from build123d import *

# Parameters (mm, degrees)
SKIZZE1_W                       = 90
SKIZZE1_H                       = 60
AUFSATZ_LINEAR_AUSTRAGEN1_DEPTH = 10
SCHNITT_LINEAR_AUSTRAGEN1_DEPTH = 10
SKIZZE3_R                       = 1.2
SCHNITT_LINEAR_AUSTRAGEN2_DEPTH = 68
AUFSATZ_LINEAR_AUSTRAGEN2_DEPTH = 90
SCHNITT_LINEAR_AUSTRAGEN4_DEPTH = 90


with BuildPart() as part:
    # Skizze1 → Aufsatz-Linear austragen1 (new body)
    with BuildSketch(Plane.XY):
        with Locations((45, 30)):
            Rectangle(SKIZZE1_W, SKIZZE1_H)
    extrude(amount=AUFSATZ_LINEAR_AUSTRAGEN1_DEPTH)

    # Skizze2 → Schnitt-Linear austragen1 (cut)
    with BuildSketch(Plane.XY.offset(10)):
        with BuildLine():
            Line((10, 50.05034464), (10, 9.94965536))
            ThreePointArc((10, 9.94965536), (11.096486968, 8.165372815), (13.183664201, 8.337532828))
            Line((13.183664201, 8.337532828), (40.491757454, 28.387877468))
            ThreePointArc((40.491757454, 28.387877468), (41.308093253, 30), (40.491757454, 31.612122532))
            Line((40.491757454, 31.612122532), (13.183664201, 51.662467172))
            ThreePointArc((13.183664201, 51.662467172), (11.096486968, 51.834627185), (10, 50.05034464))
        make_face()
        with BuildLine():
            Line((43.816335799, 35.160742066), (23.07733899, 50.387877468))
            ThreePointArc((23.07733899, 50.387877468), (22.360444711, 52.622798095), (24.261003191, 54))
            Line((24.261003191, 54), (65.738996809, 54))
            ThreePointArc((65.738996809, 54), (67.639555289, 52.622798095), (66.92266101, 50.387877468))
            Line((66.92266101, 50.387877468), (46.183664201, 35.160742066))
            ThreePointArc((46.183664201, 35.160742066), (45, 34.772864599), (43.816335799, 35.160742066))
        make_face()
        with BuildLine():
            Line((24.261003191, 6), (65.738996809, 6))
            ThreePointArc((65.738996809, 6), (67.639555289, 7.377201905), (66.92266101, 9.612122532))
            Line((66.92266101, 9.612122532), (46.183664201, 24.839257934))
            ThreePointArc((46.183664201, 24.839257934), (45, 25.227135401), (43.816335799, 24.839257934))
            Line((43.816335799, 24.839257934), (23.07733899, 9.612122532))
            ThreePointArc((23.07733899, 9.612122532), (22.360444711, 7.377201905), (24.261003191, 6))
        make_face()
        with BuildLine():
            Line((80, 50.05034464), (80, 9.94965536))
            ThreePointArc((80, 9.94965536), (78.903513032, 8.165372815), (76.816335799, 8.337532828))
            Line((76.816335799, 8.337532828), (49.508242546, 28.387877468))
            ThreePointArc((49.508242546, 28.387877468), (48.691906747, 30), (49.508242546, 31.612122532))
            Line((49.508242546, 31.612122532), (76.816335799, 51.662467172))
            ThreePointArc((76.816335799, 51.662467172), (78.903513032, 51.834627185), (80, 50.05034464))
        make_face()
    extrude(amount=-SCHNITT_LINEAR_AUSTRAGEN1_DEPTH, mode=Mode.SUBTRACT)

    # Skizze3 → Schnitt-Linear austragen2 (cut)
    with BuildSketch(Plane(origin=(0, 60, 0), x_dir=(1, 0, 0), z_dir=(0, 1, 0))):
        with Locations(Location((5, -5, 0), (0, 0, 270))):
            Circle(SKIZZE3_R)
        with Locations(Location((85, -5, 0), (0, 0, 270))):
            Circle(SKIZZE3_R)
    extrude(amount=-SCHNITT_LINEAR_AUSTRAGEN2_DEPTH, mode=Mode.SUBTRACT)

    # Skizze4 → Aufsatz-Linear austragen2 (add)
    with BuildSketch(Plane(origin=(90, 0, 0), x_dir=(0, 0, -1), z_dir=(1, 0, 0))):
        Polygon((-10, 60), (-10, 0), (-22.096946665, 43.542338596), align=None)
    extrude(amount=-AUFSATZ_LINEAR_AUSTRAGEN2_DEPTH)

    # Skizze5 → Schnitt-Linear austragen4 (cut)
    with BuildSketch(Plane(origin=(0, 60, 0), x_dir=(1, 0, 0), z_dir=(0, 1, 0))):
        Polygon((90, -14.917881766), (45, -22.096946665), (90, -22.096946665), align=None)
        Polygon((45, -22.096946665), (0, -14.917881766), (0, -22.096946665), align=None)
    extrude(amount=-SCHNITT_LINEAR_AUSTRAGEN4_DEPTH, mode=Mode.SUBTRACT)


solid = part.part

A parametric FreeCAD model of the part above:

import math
import FreeCAD as App
import Part
import Sketcher

V = App.Vector
Q = App.Units.Quantity

doc = App.newDocument("Part")
params = doc.addObject("Spreadsheet::Sheet", "Params")
for row, (alias, value) in enumerate([
    ("sketch1_width", "90 mm"),
    ("sketch1_height", "60 mm"),
    ("pad1_length", "10 mm"),
    ("sketch2_radius", "2 mm"),
    ("pocket1_length", "10 mm"),
    ("sketch3_diameter", "2.4 mm"),
    ("pocket2_length", "68 mm"),
    ("sketch4_width", "60 mm"),
    ("pad2_length", "90 mm"),
    ("sketch5_width", "45 mm"),
    ("pocket3_length", "90 mm"),
], start=1):
    params.set(f"A{row}", alias)
    params.set(f"B{row}", "=" + value)
    params.setAlias(f"B{row}", alias)

body = doc.addObject("PartDesign::Body", "Body")

# Sketch on XY plane
sketch1 = body.newObject("Sketcher::SketchObject", "Sketch")
sketch1.AttachmentSupport = (doc.getObject("XY_Plane"), [""])
sketch1.MapMode = "FlatFace"
sketch1.addGeometry([
    Part.LineSegment(V(0, 60, 0), V(0, 0, 0)),
    Part.LineSegment(V(0, 0, 0), V(90, 0, 0)),
    Part.LineSegment(V(90, 0, 0), V(90, 60, 0)),
    Part.LineSegment(V(90, 60, 0), V(0, 60, 0)),
], False)
sketch1.addConstraint([
    Sketcher.Constraint("Coincident", 0, 2, 1, 1),
    Sketcher.Constraint("Coincident", 1, 2, 2, 1),
    Sketcher.Constraint("Coincident", 2, 2, 3, 1),
    Sketcher.Constraint("Coincident", 3, 2, 0, 1),
    Sketcher.Constraint("Vertical", 0),
    Sketcher.Constraint("Horizontal", 1),
    Sketcher.Constraint("Vertical", 2),
    Sketcher.Constraint("Horizontal", 3),
    Sketcher.Constraint("Coincident", 0, 2, -1, 1),
    Sketcher.Constraint("DistanceX", 1, 1, 1, 2, Q("90 mm")),
    Sketcher.Constraint("DistanceY", 0, 2, 0, 1, Q("60 mm")),
])
sketch1.setExpression("Constraints[9]", "Params.sketch1_width")
sketch1.setExpression("Constraints[10]", "Params.sketch1_height")
pad1 = body.newObject("PartDesign::Pad", "Pad")
pad1.Profile = sketch1
pad1.setExpression("Length", "Params.pad1_length")

# Sketch on XY plane
sketch2 = body.newObject("Sketcher::SketchObject", "Sketch001")
sketch2.AttachmentSupport = (doc.getObject("XY_Plane"), [""])
sketch2.MapMode = "FlatFace"
sketch2.AttachmentOffset = App.Placement(V(0, 0, 10), App.Rotation())
sketch2.addGeometry([
    Part.LineSegment(V(10, 50.1, 0), V(10, 9.9, 0)),  # 0
    Part.ArcOfCircle(Part.Circle(V(12, 9.9, 0), V(0, 0, 1), 2), math.radians(180), math.radians(306)),  # 1
    Part.LineSegment(V(13.2, 8.3, 0), V(40.5, 28.4, 0)),  # 2
    Part.ArcOfCircle(Part.Circle(V(39.3, 30, 0), V(0, 0, 1), 2), math.radians(-54), math.radians(54)),  # 3
    Part.LineSegment(V(40.5, 31.6, 0), V(13.2, 51.7, 0)),  # 4
    Part.ArcOfCircle(Part.Circle(V(12, 50.1, 0), V(0, 0, 1), 2), math.radians(54), math.radians(180)),  # 5
    Part.LineSegment(V(23.1, 50.4, 0), V(43.8, 35.2, 0)),  # 6
    Part.ArcOfCircle(Part.Circle(V(45, 36.8, 0), V(0, 0, 1), 2), math.radians(-126), math.radians(-54)),  # 7
    Part.LineSegment(V(46.2, 35.2, 0), V(66.9, 50.4, 0)),  # 8
    Part.ArcOfCircle(Part.Circle(V(65.7, 52, 0), V(0, 0, 1), 2), math.radians(-54), math.radians(90)),  # 9
    Part.LineSegment(V(65.7, 54, 0), V(24.3, 54, 0)),  # 10
    Part.ArcOfCircle(Part.Circle(V(24.3, 52, 0), V(0, 0, 1), 2), math.radians(90), math.radians(234)),  # 11
    Part.LineSegment(V(24.3, 6, 0), V(65.7, 6, 0)),  # 12
    Part.ArcOfCircle(Part.Circle(V(65.7, 8, 0), V(0, 0, 1), 2), math.radians(-90), math.radians(54)),  # 13
    Part.LineSegment(V(66.9, 9.6, 0), V(46.2, 24.8, 0)),  # 14
    Part.ArcOfCircle(Part.Circle(V(45, 23.2, 0), V(0, 0, 1), 2), math.radians(54), math.radians(126)),  # 15
    Part.LineSegment(V(43.8, 24.8, 0), V(23.1, 9.6, 0)),  # 16
    Part.ArcOfCircle(Part.Circle(V(24.3, 8, 0), V(0, 0, 1), 2), math.radians(126), math.radians(270)),  # 17
    Part.LineSegment(V(80, 9.9, 0), V(80, 50.1, 0)),  # 18
    Part.ArcOfCircle(Part.Circle(V(78, 50.1, 0), V(0, 0, 1), 2), math.radians(0), math.radians(126)),  # 19
    Part.LineSegment(V(76.8, 51.7, 0), V(49.5, 31.6, 0)),  # 20
    Part.ArcOfCircle(Part.Circle(V(50.7, 30, 0), V(0, 0, 1), 2), math.radians(126), math.radians(234)),  # 21
    Part.LineSegment(V(49.5, 28.4, 0), V(76.8, 8.3, 0)),  # 22
    Part.ArcOfCircle(Part.Circle(V(78, 9.9, 0), V(0, 0, 1), 2), math.radians(-126), math.radians(0)),  # 23
], False)
sketch2.addConstraint([
    Sketcher.Constraint("Tangent", 0, 2, 1, 1),
    Sketcher.Constraint("Tangent", 1, 2, 2, 1),
    Sketcher.Constraint("Tangent", 2, 2, 3, 1),
    Sketcher.Constraint("Tangent", 3, 2, 4, 1),
    Sketcher.Constraint("Tangent", 4, 2, 5, 1),
    Sketcher.Constraint("Tangent", 5, 2, 0, 1),
    Sketcher.Constraint("Tangent", 6, 2, 7, 1),
    Sketcher.Constraint("Tangent", 7, 2, 8, 1),
    Sketcher.Constraint("Tangent", 8, 2, 9, 1),
    Sketcher.Constraint("Tangent", 9, 2, 10, 1),
    Sketcher.Constraint("Tangent", 10, 2, 11, 1),
    Sketcher.Constraint("Tangent", 11, 2, 6, 1),
    Sketcher.Constraint("Tangent", 12, 2, 13, 1),
    Sketcher.Constraint("Tangent", 13, 2, 14, 1),
    Sketcher.Constraint("Tangent", 14, 2, 15, 1),
    Sketcher.Constraint("Tangent", 15, 2, 16, 1),
    Sketcher.Constraint("Tangent", 16, 2, 17, 1),
    Sketcher.Constraint("Tangent", 17, 2, 12, 1),
    Sketcher.Constraint("Tangent", 18, 2, 19, 1),
    Sketcher.Constraint("Tangent", 19, 2, 20, 1),
    Sketcher.Constraint("Tangent", 20, 2, 21, 1),
    Sketcher.Constraint("Tangent", 21, 2, 22, 1),
    Sketcher.Constraint("Tangent", 22, 2, 23, 1),
    Sketcher.Constraint("Tangent", 23, 2, 18, 1),
    Sketcher.Constraint("Vertical", 0),
    Sketcher.Constraint("Horizontal", 10),
    Sketcher.Constraint("Horizontal", 12),
    Sketcher.Constraint("Vertical", 18),
    Sketcher.Constraint("Equal", 1, 3),
    Sketcher.Constraint("Equal", 3, 5),
    Sketcher.Constraint("Equal", 5, 7),
    Sketcher.Constraint("Equal", 7, 9),
    Sketcher.Constraint("Equal", 9, 11),
    Sketcher.Constraint("Equal", 11, 13),
    Sketcher.Constraint("Equal", 13, 15),
    Sketcher.Constraint("Equal", 15, 17),
    Sketcher.Constraint("Equal", 17, 19),
    Sketcher.Constraint("Equal", 19, 21),
    Sketcher.Constraint("Equal", 21, 23),
    Sketcher.Constraint("Parallel", 4, 6),
    Sketcher.Constraint("Parallel", 2, 8),
    Sketcher.Constraint("Parallel", 6, 14),
    Sketcher.Constraint("Parallel", 8, 16),
    Sketcher.Constraint("Parallel", 16, 20),
    Sketcher.Constraint("Parallel", 14, 22),
    Sketcher.Constraint("Horizontal", 5, 3, 19, 3),
    Sketcher.Constraint("Horizontal", 3, 3, 21, 3),
    Sketcher.Constraint("Horizontal", 1, 3, 23, 3),
    Sketcher.Constraint("Vertical", 9, 3, 13, 3),
    Sketcher.Constraint("Vertical", 7, 3, 15, 3),
    Sketcher.Constraint("Radius", 1, Q("2 mm")),
    Sketcher.Constraint("DistanceX", -1, 1, 1, 3, Q("12 mm")),
    Sketcher.Constraint("DistanceY", -1, 1, 3, 3, Q("30 mm")),
    Sketcher.Constraint("DistanceX", -1, 1, 7, 3, Q("45 mm")),
    Sketcher.Constraint("DistanceY", -1, 1, 9, 3, Q("52 mm")),
    Sketcher.Constraint("DistanceY", -1, 1, 13, 3, Q("8 mm")),
    Sketcher.Constraint("DistanceX", -1, 1, 19, 3, Q("78 mm")),
    Sketcher.Constraint("DistanceY", 0, 2, 0, 1, Q("40.100689 mm")),
    Sketcher.Constraint("Distance", 6, Q("25.72881 mm")),
    Sketcher.Constraint("DistanceX", 10, 2, 10, 1, Q("41.477994 mm")),
])
sketch2.setExpression("Constraints[50]", "Params.sketch2_radius")
pocket1 = body.newObject("PartDesign::Pocket", "Pocket")
pocket1.Profile = sketch2
pocket1.setExpression("Length", "Params.pocket1_length")

# Sketch on XZ plane
sketch3 = body.newObject("Sketcher::SketchObject", "Sketch002")
sketch3.AttachmentSupport = (doc.getObject("XZ_Plane"), [""])
sketch3.MapMode = "FlatFace"
sketch3.AttachmentOffset = App.Placement(V(0, 0, -60), App.Rotation())
sketch3.addGeometry([
    Part.Circle(V(5, 5, 0), V(0, 0, 1), 1.2),
    Part.Circle(V(85, 5, 0), V(0, 0, 1), 1.2),
], False)
sketch3.addConstraint([
    Sketcher.Constraint("Equal", 0, 1),
    Sketcher.Constraint("Horizontal", 0, 3, 1, 3),
    Sketcher.Constraint("Diameter", 0, Q("2.4 mm")),
    Sketcher.Constraint("DistanceX", -1, 1, 0, 3, Q("5 mm")),
    Sketcher.Constraint("DistanceY", -1, 1, 0, 3, Q("5 mm")),
    Sketcher.Constraint("DistanceX", -1, 1, 1, 3, Q("85 mm")),
])
sketch3.setExpression("Constraints[2]", "Params.sketch3_diameter")
pocket2 = body.newObject("PartDesign::Pocket", "Pocket001")
pocket2.Profile = sketch3
pocket2.setExpression("Length", "Params.pocket2_length")
pocket2.Reversed = True

# Sketch on YZ plane
sketch4 = body.newObject("Sketcher::SketchObject", "Sketch003")
sketch4.AttachmentSupport = (doc.getObject("YZ_Plane"), [""])
sketch4.MapMode = "FlatFace"
sketch4.AttachmentOffset = App.Placement(V(0, 0, 90), App.Rotation())
sketch4.addGeometry([
    Part.LineSegment(V(0, 10, 0), V(60, 10, 0)),
    Part.LineSegment(V(60, 10, 0), V(44, 22, 0)),
    Part.LineSegment(V(44, 22, 0), V(0, 10, 0)),
], False)
sketch4.addConstraint([
    Sketcher.Constraint("Coincident", 0, 2, 1, 1),
    Sketcher.Constraint("Coincident", 1, 2, 2, 1),
    Sketcher.Constraint("Coincident", 2, 2, 0, 1),
    Sketcher.Constraint("Horizontal", 0),
    Sketcher.Constraint("PointOnObject", 2, 2, -2),
    Sketcher.Constraint("DistanceX", 0, 1, 0, 2, Q("60 mm")),
    Sketcher.Constraint("DistanceY", -1, 1, 0, 2, Q("10 mm")),
    Sketcher.Constraint("DistanceX", -1, 1, 1, 2, Q("43.542339 mm")),
    Sketcher.Constraint("Distance", 1, Q("20.425248 mm")),
])
sketch4.setExpression("Constraints[5]", "Params.sketch4_width")
pad2 = body.newObject("PartDesign::Pad", "Pad001")
pad2.Profile = sketch4
pad2.setExpression("Length", "Params.pad2_length")
pad2.Reversed = True

# Sketch on XZ plane
sketch5 = body.newObject("Sketcher::SketchObject", "Sketch004")
sketch5.AttachmentSupport = (doc.getObject("XZ_Plane"), [""])
sketch5.MapMode = "FlatFace"
sketch5.AttachmentOffset = App.Placement(V(0, 0, -60), App.Rotation())
sketch5.addGeometry([
    Part.LineSegment(V(90, 15, 0), V(45, 22, 0)),  # 0
    Part.LineSegment(V(45, 22, 0), V(90, 22, 0)),  # 1
    Part.LineSegment(V(90, 22, 0), V(90, 15, 0)),  # 2
    Part.LineSegment(V(45, 22, 0), V(0, 15, 0)),  # 3
    Part.LineSegment(V(0, 15, 0), V(0, 22, 0)),  # 4
    Part.LineSegment(V(0, 22, 0), V(45, 22, 0)),  # 5
], False)
sketch5.addConstraint([
    Sketcher.Constraint("Coincident", 0, 2, 1, 1),
    Sketcher.Constraint("Coincident", 1, 2, 2, 1),
    Sketcher.Constraint("Coincident", 2, 2, 0, 1),
    Sketcher.Constraint("Coincident", 3, 2, 4, 1),
    Sketcher.Constraint("Coincident", 4, 2, 5, 1),
    Sketcher.Constraint("Coincident", 5, 2, 3, 1),
    Sketcher.Constraint("Horizontal", 1),
    Sketcher.Constraint("Vertical", 2),
    Sketcher.Constraint("Vertical", 4),
    Sketcher.Constraint("Horizontal", 5),
    Sketcher.Constraint("Coincident", 5, 2, 0, 2),
    Sketcher.Constraint("PointOnObject", 3, 2, -2),
    Sketcher.Constraint("Horizontal", 2, 2, 3, 2),
    Sketcher.Constraint("Equal", 1, 5),
    Sketcher.Constraint("DistanceX", 1, 1, 1, 2, Q("45 mm")),
    Sketcher.Constraint("DistanceY", 2, 2, 2, 1, Q("7.179065 mm")),
    Sketcher.Constraint("DistanceY", -1, 1, 2, 2, Q("14.917882 mm")),
])
sketch5.setExpression("Constraints[14]", "Params.sketch5_width")
pocket3 = body.newObject("PartDesign::Pocket", "Pocket002")
pocket3.Profile = sketch5
pocket3.setExpression("Length", "Params.pocket3_length")
pocket3.Reversed = True

doc.recompute()
